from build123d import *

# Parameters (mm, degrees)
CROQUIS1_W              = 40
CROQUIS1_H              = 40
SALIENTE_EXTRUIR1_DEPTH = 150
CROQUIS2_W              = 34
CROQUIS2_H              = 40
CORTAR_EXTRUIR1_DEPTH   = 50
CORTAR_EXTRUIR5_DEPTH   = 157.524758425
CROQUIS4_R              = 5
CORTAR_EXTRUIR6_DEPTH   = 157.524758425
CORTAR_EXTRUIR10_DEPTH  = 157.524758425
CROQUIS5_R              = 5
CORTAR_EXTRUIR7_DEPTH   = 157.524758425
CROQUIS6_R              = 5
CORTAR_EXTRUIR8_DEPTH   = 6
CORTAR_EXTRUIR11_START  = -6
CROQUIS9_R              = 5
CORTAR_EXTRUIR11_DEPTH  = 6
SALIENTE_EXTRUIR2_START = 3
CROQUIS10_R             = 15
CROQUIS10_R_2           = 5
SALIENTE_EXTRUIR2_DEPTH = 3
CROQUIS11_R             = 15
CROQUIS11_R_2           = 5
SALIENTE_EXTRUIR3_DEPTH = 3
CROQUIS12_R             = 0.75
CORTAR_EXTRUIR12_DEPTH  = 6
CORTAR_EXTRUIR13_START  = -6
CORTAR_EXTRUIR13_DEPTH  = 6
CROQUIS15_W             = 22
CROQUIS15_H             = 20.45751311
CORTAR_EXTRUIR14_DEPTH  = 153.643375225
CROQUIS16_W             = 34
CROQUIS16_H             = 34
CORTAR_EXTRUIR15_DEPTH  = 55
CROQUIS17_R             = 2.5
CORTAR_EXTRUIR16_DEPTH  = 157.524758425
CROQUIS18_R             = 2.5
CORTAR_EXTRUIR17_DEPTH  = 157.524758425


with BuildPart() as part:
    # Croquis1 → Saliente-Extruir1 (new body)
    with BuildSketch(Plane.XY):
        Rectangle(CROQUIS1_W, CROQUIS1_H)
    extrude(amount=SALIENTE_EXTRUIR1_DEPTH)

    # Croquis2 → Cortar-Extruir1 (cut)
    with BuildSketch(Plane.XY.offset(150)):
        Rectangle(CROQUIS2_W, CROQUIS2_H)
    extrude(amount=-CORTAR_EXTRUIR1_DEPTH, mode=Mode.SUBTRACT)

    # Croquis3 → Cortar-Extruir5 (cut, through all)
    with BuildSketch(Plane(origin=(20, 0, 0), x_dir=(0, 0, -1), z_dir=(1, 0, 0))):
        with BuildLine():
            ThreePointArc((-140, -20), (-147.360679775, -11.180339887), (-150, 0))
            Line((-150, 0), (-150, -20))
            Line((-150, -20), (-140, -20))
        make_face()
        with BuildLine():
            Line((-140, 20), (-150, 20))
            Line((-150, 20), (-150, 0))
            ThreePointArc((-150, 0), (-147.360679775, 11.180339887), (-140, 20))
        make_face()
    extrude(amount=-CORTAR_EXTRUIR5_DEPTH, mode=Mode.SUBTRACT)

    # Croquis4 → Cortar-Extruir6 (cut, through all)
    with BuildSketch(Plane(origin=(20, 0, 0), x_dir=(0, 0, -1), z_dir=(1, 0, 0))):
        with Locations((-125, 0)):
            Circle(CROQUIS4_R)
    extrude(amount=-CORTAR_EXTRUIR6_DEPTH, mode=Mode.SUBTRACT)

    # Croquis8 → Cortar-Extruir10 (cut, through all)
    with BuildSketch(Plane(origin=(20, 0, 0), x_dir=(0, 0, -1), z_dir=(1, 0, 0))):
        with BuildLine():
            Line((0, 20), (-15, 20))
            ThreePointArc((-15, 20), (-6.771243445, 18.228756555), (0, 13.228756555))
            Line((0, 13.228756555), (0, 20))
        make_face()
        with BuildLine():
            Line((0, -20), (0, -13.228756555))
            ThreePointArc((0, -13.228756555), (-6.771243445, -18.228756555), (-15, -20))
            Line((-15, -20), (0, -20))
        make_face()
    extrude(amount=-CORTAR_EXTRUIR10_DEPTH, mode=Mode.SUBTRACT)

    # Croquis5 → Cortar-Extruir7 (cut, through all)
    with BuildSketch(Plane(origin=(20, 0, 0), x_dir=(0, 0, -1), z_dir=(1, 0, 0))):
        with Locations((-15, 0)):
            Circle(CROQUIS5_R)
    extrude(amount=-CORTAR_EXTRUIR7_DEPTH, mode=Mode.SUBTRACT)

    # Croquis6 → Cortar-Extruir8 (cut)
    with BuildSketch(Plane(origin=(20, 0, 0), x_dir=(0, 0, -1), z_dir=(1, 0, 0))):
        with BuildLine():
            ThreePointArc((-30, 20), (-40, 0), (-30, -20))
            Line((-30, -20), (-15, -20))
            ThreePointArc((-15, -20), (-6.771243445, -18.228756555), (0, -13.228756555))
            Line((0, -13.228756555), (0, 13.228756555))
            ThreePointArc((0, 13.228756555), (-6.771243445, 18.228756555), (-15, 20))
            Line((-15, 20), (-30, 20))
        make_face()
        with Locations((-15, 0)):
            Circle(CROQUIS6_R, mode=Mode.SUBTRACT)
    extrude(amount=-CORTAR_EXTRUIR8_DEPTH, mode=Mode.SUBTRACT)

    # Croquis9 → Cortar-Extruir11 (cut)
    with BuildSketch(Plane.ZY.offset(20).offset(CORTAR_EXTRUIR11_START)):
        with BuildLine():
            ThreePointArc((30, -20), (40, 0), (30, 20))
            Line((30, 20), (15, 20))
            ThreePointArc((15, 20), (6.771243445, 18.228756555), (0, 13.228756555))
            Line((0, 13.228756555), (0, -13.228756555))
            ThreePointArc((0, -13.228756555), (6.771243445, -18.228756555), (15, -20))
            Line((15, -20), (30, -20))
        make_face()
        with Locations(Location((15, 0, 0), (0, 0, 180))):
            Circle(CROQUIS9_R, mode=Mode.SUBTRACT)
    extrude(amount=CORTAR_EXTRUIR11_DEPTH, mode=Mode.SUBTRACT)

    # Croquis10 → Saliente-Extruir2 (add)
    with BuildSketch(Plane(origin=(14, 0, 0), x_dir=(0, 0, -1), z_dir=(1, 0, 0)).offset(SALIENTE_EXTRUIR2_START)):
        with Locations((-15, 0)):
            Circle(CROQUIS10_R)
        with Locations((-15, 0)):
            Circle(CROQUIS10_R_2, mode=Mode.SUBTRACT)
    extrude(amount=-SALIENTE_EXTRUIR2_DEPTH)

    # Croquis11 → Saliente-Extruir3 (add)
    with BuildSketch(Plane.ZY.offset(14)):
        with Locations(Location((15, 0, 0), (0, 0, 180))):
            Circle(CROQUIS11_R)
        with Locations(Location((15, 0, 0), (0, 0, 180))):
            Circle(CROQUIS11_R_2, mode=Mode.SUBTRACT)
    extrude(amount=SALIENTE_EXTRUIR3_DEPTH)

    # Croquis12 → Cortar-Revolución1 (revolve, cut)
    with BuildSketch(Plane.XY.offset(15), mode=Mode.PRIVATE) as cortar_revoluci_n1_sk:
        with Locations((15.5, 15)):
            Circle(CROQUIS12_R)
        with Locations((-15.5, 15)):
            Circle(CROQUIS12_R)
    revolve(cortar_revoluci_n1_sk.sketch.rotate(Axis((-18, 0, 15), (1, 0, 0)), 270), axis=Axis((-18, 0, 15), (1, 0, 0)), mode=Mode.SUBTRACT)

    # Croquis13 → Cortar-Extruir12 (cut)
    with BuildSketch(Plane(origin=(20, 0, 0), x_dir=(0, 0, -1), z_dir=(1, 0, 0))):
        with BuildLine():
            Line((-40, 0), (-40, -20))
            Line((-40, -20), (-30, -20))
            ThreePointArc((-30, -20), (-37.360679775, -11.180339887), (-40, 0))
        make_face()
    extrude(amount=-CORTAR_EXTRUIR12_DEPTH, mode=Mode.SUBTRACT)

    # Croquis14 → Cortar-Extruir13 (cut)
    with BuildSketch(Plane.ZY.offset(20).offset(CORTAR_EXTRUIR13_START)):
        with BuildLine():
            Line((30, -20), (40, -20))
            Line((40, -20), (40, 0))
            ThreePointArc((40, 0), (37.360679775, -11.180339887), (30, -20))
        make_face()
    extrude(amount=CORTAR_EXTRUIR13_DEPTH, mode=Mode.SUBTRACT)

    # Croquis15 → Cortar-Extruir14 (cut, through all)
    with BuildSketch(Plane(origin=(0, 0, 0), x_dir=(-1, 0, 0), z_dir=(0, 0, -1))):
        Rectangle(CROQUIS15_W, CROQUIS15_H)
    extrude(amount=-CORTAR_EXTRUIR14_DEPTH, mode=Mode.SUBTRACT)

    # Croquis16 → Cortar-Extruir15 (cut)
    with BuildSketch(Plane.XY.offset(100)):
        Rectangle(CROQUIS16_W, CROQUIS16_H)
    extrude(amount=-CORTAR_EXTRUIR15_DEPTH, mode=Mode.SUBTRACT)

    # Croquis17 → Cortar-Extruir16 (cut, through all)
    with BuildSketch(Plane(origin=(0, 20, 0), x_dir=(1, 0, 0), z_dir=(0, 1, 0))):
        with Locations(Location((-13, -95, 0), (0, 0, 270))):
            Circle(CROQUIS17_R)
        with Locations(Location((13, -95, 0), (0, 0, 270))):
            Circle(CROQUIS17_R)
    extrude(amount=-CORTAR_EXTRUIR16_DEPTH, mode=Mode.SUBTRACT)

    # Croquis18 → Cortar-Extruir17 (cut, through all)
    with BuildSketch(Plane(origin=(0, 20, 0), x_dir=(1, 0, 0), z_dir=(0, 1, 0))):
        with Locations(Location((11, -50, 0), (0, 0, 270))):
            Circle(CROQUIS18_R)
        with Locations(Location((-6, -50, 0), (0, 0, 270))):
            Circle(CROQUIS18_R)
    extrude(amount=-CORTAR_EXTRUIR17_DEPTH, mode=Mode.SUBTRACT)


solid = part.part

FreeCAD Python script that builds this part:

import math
import FreeCAD as App
import Part
import Sketcher
Q = App.Units.Quantity


def add_polygon(sketch, points):
    """Adds a closed chain of lines whose ends are joined by coincident constraints."""
    first, n = sketch.GeometryCount, len(points)
    for a, b in zip(points, points[1:] + points[:1]):
        sketch.addGeometry(Part.LineSegment(App.Vector(*a, 0), App.Vector(*b, 0)), False)
    for i in range(n):
        sketch.addConstraint(Sketcher.Constraint("Coincident", first + i, 2, first + (i + 1) % n, 1))

doc = App.newDocument("Part")
body = doc.addObject("PartDesign::Body", "Body")

# Sketch on XY plane
sketch1 = doc.addObject("Sketcher::SketchObject", "Sketch")
body.addObject(sketch1)
sketch1.AttachmentSupport = (doc.XY_Plane, [""])
sketch1.MapMode = "FlatFace"
add_polygon(sketch1, [(-20, 20), (-20, -20), (20, -20), (20, 20)])  # lines 0-3
sketch1.addConstraint([
    Sketcher.Constraint("Vertical", 0),
    Sketcher.Constraint("Horizontal", 1),
    Sketcher.Constraint("Vertical", 2),
    Sketcher.Constraint("Horizontal", 3),
    Sketcher.Constraint("Symmetric", 0, 2, 2, 2, -1, 1),
    Sketcher.Constraint("Equal", 3, 0),
    Sketcher.Constraint("DistanceX", 1, 1, 1, 2, Q("40 mm")),
])
pad1 = doc.addObject("PartDesign::Pad", "Pad")
body.addObject(pad1)
pad1.Profile = sketch1
pad1.Length = 150

# Sketch on XY plane
sketch2 = doc.addObject("Sketcher::SketchObject", "Sketch001")
body.addObject(sketch2)
sketch2.AttachmentSupport = (doc.XY_Plane, [""])
sketch2.MapMode = "FlatFace"
sketch2.AttachmentOffset = App.Placement(App.Vector(0, 0, 150), App.Rotation())
add_polygon(sketch2, [(-17, 20), (-17, -20), (17, -20), (17, 20)])  # lines 0-3
sketch2.addConstraint([
    Sketcher.Constraint("Vertical", 0),
    Sketcher.Constraint("Horizontal", 1),
    Sketcher.Constraint("Vertical", 2),
    Sketcher.Constraint("Horizontal", 3),
    Sketcher.Constraint("Symmetric", 0, 2, 2, 2, -1, 1),
    Sketcher.Constraint("DistanceX", 1, 1, 1, 2, Q("34 mm")),
    Sketcher.Constraint("DistanceY", 0, 2, 0, 1, Q("40 mm")),
])
pocket1 = doc.addObject("PartDesign::Pocket", "Pocket")
body.addObject(pocket1)
pocket1.Profile = sketch2
pocket1.Length = 50

# Sketch on YZ plane
sketch3 = doc.addObject("Sketcher::SketchObject", "Sketch002")
body.addObject(sketch3)
sketch3.AttachmentSupport = (doc.YZ_Plane, [""])
sketch3.MapMode = "FlatFace"
sketch3.AttachmentOffset = App.Placement(App.Vector(0, 0, 20), App.Rotation())
sketch3.addGeometry([
    Part.ArcOfCircle(Part.Circle(App.Vector(0, 125, 0), App.Vector(0, 0, 1), 25), math.radians(90), math.radians(143)),  # 0
    Part.LineSegment(App.Vector(0, 150, 0), App.Vector(-20, 150, 0)),  # 1
    Part.LineSegment(App.Vector(-20, 150, 0), App.Vector(-20, 140, 0)),  # 2
    Part.LineSegment(App.Vector(20, 140, 0), App.Vector(20, 150, 0)),  # 3
    Part.LineSegment(App.Vector(20, 150, 0), App.Vector(0, 150, 0)),  # 4
    Part.ArcOfCircle(Part.Circle(App.Vector(0, 125, 0), App.Vector(0, 0, 1), 25), math.radians(37), math.radians(90)),  # 5
], False)
sketch3.addConstraint([
    Sketcher.Constraint("Tangent", 0, 1, 1, 1),
    Sketcher.Constraint("Coincident", 1, 2, 2, 1),
    Sketcher.Constraint("Coincident", 2, 2, 0, 2),
    Sketcher.Constraint("Coincident", 3, 2, 4, 1),
    Sketcher.Constraint("Tangent", 4, 2, 5, 2),
    Sketcher.Constraint("Coincident", 5, 1, 3, 1),
    Sketcher.Constraint("Horizontal", 1),
    Sketcher.Constraint("Vertical", 2),
    Sketcher.Constraint("Vertical", 3),
    Sketcher.Constraint("Horizontal", 4),
    Sketcher.Constraint("Coincident", 5, 3, 0, 3),
    Sketcher.Constraint("Equal", 0, 5),
    Sketcher.Constraint("Symmetric", 2, 2, 5, 1, -2),
    Sketcher.Constraint("Radius", 0, Q("25 mm")),
    Sketcher.Constraint("DistanceX", 1, 2, 1, 1, Q("20 mm")),
    Sketcher.Constraint("DistanceY", -1, 1, 0, 3, Q("125 mm")),
])
pocket2 = doc.addObject("PartDesign::Pocket", "Pocket001")
body.addObject(pocket2)
pocket2.Profile = sketch3
pocket2.Type = "ThroughAll"

# Sketch on YZ plane
sketch4 = doc.addObject("Sketcher::SketchObject", "Sketch003")
body.addObject(sketch4)
sketch4.AttachmentSupport = (doc.YZ_Plane, [""])
sketch4.MapMode = "FlatFace"
sketch4.AttachmentOffset = App.Placement(App.Vector(0, 0, 20), App.Rotation())
sketch4.addGeometry(Part.Circle(App.Vector(0, 125, 0), App.Vector(0, 0, 1), 5), False)
sketch4.addConstraint([
    Sketcher.Constraint("PointOnObject", 0, 3, -2),
    Sketcher.Constraint("Diameter", 0, Q("10 mm")),
    Sketcher.Constraint("DistanceY", -1, 1, 0, 3, Q("125 mm")),
])
pocket3 = doc.addObject("PartDesign::Pocket", "Pocket002")
body.addObject(pocket3)
pocket3.Profile = sketch4
pocket3.Type = "ThroughAll"

# Sketch on YZ plane
sketch5 = doc.addObject("Sketcher::SketchObject", "Sketch004")
body.addObject(sketch5)
sketch5.AttachmentSupport = (doc.YZ_Plane, [""])
sketch5.MapMode = "FlatFace"
sketch5.AttachmentOffset = App.Placement(App.Vector(0, 0, 20), App.Rotation())
sketch5.addGeometry([
    Part.LineSegment(App.Vector(20, 0, 0), App.Vector(20, 15, 0)),  # 0
    Part.ArcOfCircle(Part.Circle(App.Vector(0, 15, 0), App.Vector(0, 0, 1), 20), math.radians(-49), math.radians(0)),  # 1
    Part.LineSegment(App.Vector(13, 0, 0), App.Vector(20, 0, 0)),  # 2
    Part.LineSegment(App.Vector(-20, 0, 0), App.Vector(-13, 0, 0)),  # 3
    Part.ArcOfCircle(Part.Circle(App.Vector(0, 15, 0), App.Vector(0, 0, 1), 20), math.radians(-180), math.radians(-131)),  # 4
    Part.LineSegment(App.Vector(-20, 15, 0), App.Vector(-20, 0, 0)),  # 5
], False)
sketch5.addConstraint([
    Sketcher.Constraint("Tangent", 0, 2, 1, 2),
    Sketcher.Constraint("Coincident", 1, 1, 2, 1),
    Sketcher.Constraint("Coincident", 2, 2, 0, 1),
    Sketcher.Constraint("Coincident", 3, 2, 4, 2),
    Sketcher.Constraint("Tangent", 4, 1, 5, 1),
    Sketcher.Constraint("Coincident", 5, 2, 3, 1),
    Sketcher.Constraint("Vertical", 0),
    Sketcher.Constraint("Horizontal", 2),
    Sketcher.Constraint("Horizontal", 3),
    Sketcher.Constraint("Vertical", 5),
    Sketcher.Constraint("Coincident", 4, 3, 1, 3),
    Sketcher.Constraint("Equal", 1, 4),
    Sketcher.Constraint("Symmetric", 1, 1, 3, 2, -1, 1),
    Sketcher.Constraint("PointOnObject", 1, 3, -2),
    Sketcher.Constraint("Radius", 1, Q("20 mm")),
    Sketcher.Constraint("DistanceY", 0, 1, 0, 2, Q("15 mm")),
])
pocket4 = doc.addObject("PartDesign::Pocket", "Pocket003")
body.addObject(pocket4)
pocket4.Profile = sketch5
pocket4.Type = "ThroughAll"

# Sketch on YZ plane
sketch6 = doc.addObject("Sketcher::SketchObject", "Sketch005")
body.addObject(sketch6)
sketch6.AttachmentSupport = (doc.YZ_Plane, [""])
sketch6.MapMode = "FlatFace"
sketch6.AttachmentOffset = App.Placement(App.Vector(0, 0, 20), App.Rotation())
sketch6.addGeometry(Part.Circle(App.Vector(0, 15, 0), App.Vector(0, 0, 1), 5), False)
sketch6.addConstraint([
    Sketcher.Constraint("PointOnObject", 0, 3, -2),
    Sketcher.Constraint("Diameter", 0, Q("10 mm")),
    Sketcher.Constraint("DistanceY", -1, 1, 0, 3, Q("15 mm")),
])
pocket5 = doc.addObject("PartDesign::Pocket", "Pocket004")
body.addObject(pocket5)
pocket5.Profile = sketch6
pocket5.Type = "ThroughAll"

# Sketch on YZ plane
sketch7 = doc.addObject("Sketcher::SketchObject", "Sketch006")
body.addObject(sketch7)
sketch7.AttachmentSupport = (doc.YZ_Plane, [""])
sketch7.MapMode = "FlatFace"
sketch7.AttachmentOffset = App.Placement(App.Vector(0, 0, 20), App.Rotation())
sketch7.addGeometry([
    Part.ArcOfCircle(Part.Circle(App.Vector(0, 15, 0), App.Vector(0, 0, 1), 25), math.radians(37), math.radians(143)),  # 0
    Part.LineSegment(App.Vector(-20, 30, 0), App.Vector(-20, 15, 0)),  # 1
    Part.ArcOfCircle(Part.Circle(App.Vector(0, 15, 0), App.Vector(0, 0, 1), 20), math.radians(-180), math.radians(-131)),  # 2
    Part.LineSegment(App.Vector(-13, 0, 0), App.Vector(13, 0, 0)),  # 3
    Part.ArcOfCircle(Part.Circle(App.Vector(0, 15, 0), App.Vector(0, 0, 1), 20), math.radians(-49), math.radians(0)),  # 4
    Part.LineSegment(App.Vector(20, 15, 0), App.Vector(20, 30, 0)),  # 5
    Part.Circle(App.Vector(0, 15, 0), App.Vector(0, 0, 1), 5),  # 6
], False)
sketch7.addConstraint([
    Sketcher.Constraint("Coincident", 0, 2, 1, 1),
    Sketcher.Constraint("Tangent", 1, 2, 2, 1),
    Sketcher.Constraint("Coincident", 2, 2, 3, 1),
    Sketcher.Constraint("Coincident", 3, 2, 4, 1),
    Sketcher.Constraint("Tangent", 4, 2, 5, 1),
    Sketcher.Constraint("Coincident", 5, 2, 0, 1),
    Sketcher.Constraint("Vertical", 1),
    Sketcher.Constraint("Horizontal", 3),
    Sketcher.Constraint("Vertical", 5),
    Sketcher.Constraint("Coincident", 2, 3, 0, 3),
    Sketcher.Constraint("Coincident", 4, 3, 0, 3),
    Sketcher.Constraint("Coincident", 6, 3, 0, 3),
    Sketcher.Constraint("Equal", 2, 4),
    Sketcher.Constraint("Symmetric", 2, 2, 3, 2, -1, 1),
    Sketcher.Constraint("Diameter", 6, Q("10 mm")),
    Sketcher.Constraint("Radius", 0, Q("25 mm")),
    Sketcher.Constraint("Radius", 2, Q("20 mm")),
    Sketcher.Constraint("DistanceY", -1, 1, 0, 3, Q("15 mm")),
])
pocket6 = doc.addObject("PartDesign::Pocket", "Pocket005")
body.addObject(pocket6)
pocket6.Profile = sketch7
pocket6.Length = 6

# Sketch on YZ plane
sketch8 = doc.addObject("Sketcher::SketchObject", "Sketch007")
body.addObject(sketch8)
sketch8.AttachmentSupport = (doc.YZ_Plane, [""])
sketch8.MapMode = "FlatFace"
sketch8.AttachmentOffset = App.Placement(App.Vector(0, 0, -14), App.Rotation())
sketch8.addGeometry([
    Part.ArcOfCircle(Part.Circle(App.Vector(0, 15, 0), App.Vector(0, 0, 1), 25), math.radians(37), math.radians(143)),  # 0
    Part.LineSegment(App.Vector(20, 30, 0), App.Vector(20, 15, 0)),  # 1
    Part.ArcOfCircle(Part.Circle(App.Vector(0, 15, 0), App.Vector(0, 0, 1), 20), math.radians(-49), math.radians(0)),  # 2
    Part.LineSegment(App.Vector(13, 0, 0), App.Vector(-13, 0, 0)),  # 3
    Part.ArcOfCircle(Part.Circle(App.Vector(0, 15, 0), App.Vector(0, 0, 1), 20), math.radians(-180), math.radians(-131)),  # 4
    Part.LineSegment(App.Vector(-20, 15, 0), App.Vector(-20, 30, 0)),  # 5
    Part.Circle(App.Vector(0, 15, 0), App.Vector(0, 0, 1), 5),  # 6
], False)
sketch8.addConstraint([
    Sketcher.Constraint("Coincident", 0, 1, 1, 1),
    Sketcher.Constraint("Tangent", 1, 2, 2, 2),
    Sketcher.Constraint("Coincident", 2, 1, 3, 1),
    Sketcher.Constraint("Coincident", 3, 2, 4, 2),
    Sketcher.Constraint("Tangent", 4, 1, 5, 1),
    Sketcher.Constraint("Coincident", 5, 2, 0, 2),
    Sketcher.Constraint("Vertical", 1),
    Sketcher.Constraint("Horizontal", 3),
    Sketcher.Constraint("Vertical", 5),
    Sketcher.Constraint("Coincident", 2, 3, 0, 3),
    Sketcher.Constraint("Coincident", 4, 3, 0, 3),
    Sketcher.Constraint("Coincident", 6, 3, 0, 3),
    Sketcher.Constraint("Equal", 2, 4),
    Sketcher.Constraint("Symmetric", 2, 1, 3, 2, -1, 1),
    Sketcher.Constraint("Diameter", 6, Q("10 mm")),
    Sketcher.Constraint("Radius", 0, Q("25 mm")),
    Sketcher.Constraint("Radius", 2, Q("20 mm")),
    Sketcher.Constraint("DistanceY", -1, 1, 0, 3, Q("15 mm")),
])
pocket7 = doc.addObject("PartDesign::Pocket", "Pocket006")
body.addObject(pocket7)
pocket7.Profile = sketch8
pocket7.Length = 6

# Sketch on YZ plane
sketch9 = doc.addObject("Sketcher::SketchObject", "Sketch008")
body.addObject(sketch9)
sketch9.AttachmentSupport = (doc.YZ_Plane, [""])
sketch9.MapMode = "FlatFace"
sketch9.AttachmentOffset = App.Placement(App.Vector(0, 0, 17), App.Rotation())
sketch9.addGeometry([
    Part.Circle(App.Vector(0, 15, 0), App.Vector(0, 0, 1), 15),
    Part.Circle(App.Vector(0, 15, 0), App.Vector(0, 0, 1), 5),
], False)
sketch9.addConstraint([
    Sketcher.Constraint("Coincident", 1, 3, 0, 3),
    Sketcher.Constraint("PointOnObject", 0, 3, -2),
    Sketcher.Constraint("Diameter", 0, Q("30 mm")),
    Sketcher.Constraint("Diameter", 1, Q("10 mm")),
    Sketcher.Constraint("DistanceY", -1, 1, 0, 3, Q("15 mm")),
])
pad2 = doc.addObject("PartDesign::Pad", "Pad001")
body.addObject(pad2)
pad2.Profile = sketch9
pad2.Length = 3
pad2.Reversed = True

# Sketch on YZ plane
sketch10 = doc.addObject("Sketcher::SketchObject", "Sketch009")
body.addObject(sketch10)
sketch10.AttachmentSupport = (doc.YZ_Plane, [""])
sketch10.MapMode = "FlatFace"
sketch10.AttachmentOffset = App.Placement(App.Vector(0, 0, -14), App.Rotation())
sketch10.addGeometry([
    Part.Circle(App.Vector(0, 15, 0), App.Vector(0, 0, 1), 15),
    Part.Circle(App.Vector(0, 15, 0), App.Vector(0, 0, 1), 5),
], False)
sketch10.addConstraint([
    Sketcher.Constraint("Coincident", 1, 3, 0, 3),
    Sketcher.Constraint("PointOnObject", 0, 3, -2),
    Sketcher.Constraint("Diameter", 0, Q("30 mm")),
    Sketcher.Constraint("Diameter", 1, Q("10 mm")),
    Sketcher.Constraint("DistanceY", -1, 1, 0, 3, Q("15 mm")),
])
pad3 = doc.addObject("PartDesign::Pad", "Pad002")
body.addObject(pad3)
pad3.Profile = sketch10
pad3.Length = 3
pad3.Reversed = True

# Sketch on XY plane
sketch11 = doc.addObject("Sketcher::SketchObject", "Sketch010")
body.addObject(sketch11)
sketch11.AttachmentSupport = (doc.XY_Plane, [""])
sketch11.MapMode = "FlatFace"
sketch11.AttachmentOffset = App.Placement(App.Vector(0, 0, 15), App.Rotation())
sketch11.addGeometry([
    Part.Circle(App.Vector(15.5, 15, 0), App.Vector(0, 0, 1), 0.8),
    Part.Circle(App.Vector(-15.5, 15, 0), App.Vector(0, 0, 1), 0.8),
], False)
sketch11.addConstraint([
    Sketcher.Constraint("Equal", 0, 1),
    Sketcher.Constraint("Symmetric", 0, 3, 1, 3, -2),
    Sketcher.Constraint("Diameter", 0, Q("1.5 mm")),
    Sketcher.Constraint("DistanceY", -1, 1, 0, 3, Q("15 mm")),
    Sketcher.Constraint("DistanceX", 1, 3, 0, 3, Q("31 mm")),
])
groove = doc.addObject("PartDesign::Groove", "Groove")
body.addObject(groove)
groove.Profile = sketch11
groove.ReferenceAxis = (sketch11, ["H_Axis"])
groove.Angle = 360

# Sketch on YZ plane
sketch12 = doc.addObject("Sketcher::SketchObject", "Sketch011")
body.addObject(sketch12)
sketch12.AttachmentSupport = (doc.YZ_Plane, [""])
sketch12.MapMode = "FlatFace"
sketch12.AttachmentOffset = App.Placement(App.Vector(0, 0, 20), App.Rotation())
sketch12.addGeometry([
    Part.LineSegment(App.Vector(0, 40, 0), App.Vector(-20, 40, 0)),
    Part.LineSegment(App.Vector(-20, 40, 0), App.Vector(-20, 30, 0)),
    Part.ArcOfCircle(Part.Circle(App.Vector(0, 15, 0), App.Vector(0, 0, 1), 25), math.radians(90), math.radians(143)),
], False)
sketch12.addConstraint([
    Sketcher.Constraint("Coincident", 0, 2, 1, 1),
    Sketcher.Constraint("Coincident", 1, 2, 2, 2),
    Sketcher.Constraint("Tangent", 2, 1, 0, 1),
    Sketcher.Constraint("Horizontal", 0),
    Sketcher.Constraint("Vertical", 1),
    Sketcher.Constraint("PointOnObject", 2, 3, -2),
    Sketcher.Constraint("Radius", 2, Q("25 mm")),
    Sketcher.Constraint("DistanceX", 0, 2, 0, 1, Q("20 mm")),
    Sketcher.Constraint("DistanceY", -1, 1, 2, 3, Q("15 mm")),
])
pocket8 = doc.addObject("PartDesign::Pocket", "Pocket007")
body.addObject(pocket8)
pocket8.Profile = sketch12
pocket8.Length = 6

# Sketch on YZ plane
sketch13 = doc.addObject("Sketcher::SketchObject", "Sketch012")
body.addObject(sketch13)
sketch13.AttachmentSupport = (doc.YZ_Plane, [""])
sketch13.MapMode = "FlatFace"
sketch13.AttachmentOffset = App.Placement(App.Vector(0, 0, -14), App.Rotation())
sketch13.addGeometry([
    Part.LineSegment(App.Vector(-20, 30, 0), App.Vector(-20, 40, 0)),
    Part.LineSegment(App.Vector(-20, 40, 0), App.Vector(0, 40, 0)),
    Part.ArcOfCircle(Part.Circle(App.Vector(0, 15, 0), App.Vector(0, 0, 1), 25), math.radians(90), math.radians(143)),
], False)
sketch13.addConstraint([
    Sketcher.Constraint("Coincident", 0, 2, 1, 1),
    Sketcher.Constraint("Tangent", 1, 2, 2, 1),
    Sketcher.Constraint("Coincident", 2, 2, 0, 1),
    Sketcher.Constraint("Vertical", 0),
    Sketcher.Constraint("Horizontal", 1),
    Sketcher.Constraint("PointOnObject", 2, 3, -2),
    Sketcher.Constraint("Radius", 2, Q("25 mm")),
    Sketcher.Constraint("DistanceX", 1, 1, 1, 2, Q("20 mm")),
    Sketcher.Constraint("DistanceY", -1, 1, 2, 3, Q("15 mm")),
])
pocket9 = doc.addObject("PartDesign::Pocket", "Pocket008")
body.addObject(pocket9)
pocket9.Profile = sketch13
pocket9.Length = 6

# Sketch on XY plane
sketch14 = doc.addObject("Sketcher::SketchObject", "Sketch013")
body.addObject(sketch14)
sketch14.AttachmentSupport = (doc.XY_Plane, [""])
sketch14.MapMode = "FlatFace"
add_polygon(sketch14, [(11, 10), (11, -10), (-11, -10), (-11, 10)])  # lines 0-3
sketch14.addConstraint([
    Sketcher.Constraint("Vertical", 0),
    Sketcher.Constraint("Horizontal", 1),
    Sketcher.Constraint("Vertical", 2),
    Sketcher.Constraint("Horizontal", 3),
    Sketcher.Constraint("Symmetric", 0, 2, 2, 2, -1, 1),
    Sketcher.Constraint("DistanceX", 1, 2, 1, 1, Q("22 mm")),
    Sketcher.Constraint("DistanceY", 0, 2, 0, 1, Q("20.457513 mm")),
])
pocket10 = doc.addObject("PartDesign::Pocket", "Pocket009")
body.addObject(pocket10)
pocket10.Profile = sketch14
pocket10.Type = "ThroughAll"
pocket10.Reversed = True

# Sketch on XY plane
sketch15 = doc.addObject("Sketcher::SketchObject", "Sketch014")
body.addObject(sketch15)
sketch15.AttachmentSupport = (doc.XY_Plane, [""])
sketch15.MapMode = "FlatFace"
sketch15.AttachmentOffset = App.Placement(App.Vector(0, 0, 100), App.Rotation())
add_polygon(sketch15, [(-17, 17), (-17, -17), (17, -17), (17, 17)])  # lines 0-3
sketch15.addConstraint([
    Sketcher.Constraint("Vertical", 0),
    Sketcher.Constraint("Horizontal", 1),
    Sketcher.Constraint("Vertical", 2),
    Sketcher.Constraint("Horizontal", 3),
    Sketcher.Constraint("Symmetric", 0, 2, 2, 2, -1, 1),
    Sketcher.Constraint("Equal", 3, 0),
    Sketcher.Constraint("DistanceX", 1, 1, 1, 2, Q("34 mm")),
])
pocket11 = doc.addObject("PartDesign::Pocket", "Pocket010")
body.addObject(pocket11)
pocket11.Profile = sketch15
pocket11.Length = 55

# Sketch on XZ plane
sketch16 = doc.addObject("Sketcher::SketchObject", "Sketch015")
body.addObject(sketch16)
sketch16.AttachmentSupport = (doc.XZ_Plane, [""])
sketch16.MapMode = "FlatFace"
sketch16.AttachmentOffset = App.Placement(App.Vector(0, 0, -20), App.Rotation())
sketch16.addGeometry([
    Part.Circle(App.Vector(-13, 95, 0), App.Vector(0, 0, 1), 2.5),
    Part.Circle(App.Vector(13, 95, 0), App.Vector(0, 0, 1), 2.5),
], False)
sketch16.addConstraint([
    Sketcher.Constraint("Equal", 0, 1),
    Sketcher.Constraint("Symmetric", 0, 3, 1, 3, -2),
    Sketcher.Constraint("Diameter", 0, Q("5 mm")),
    Sketcher.Constraint("DistanceX", 0, 3, -1, 1, Q("13 mm")),
    Sketcher.Constraint("DistanceY", -1, 1, 0, 3, Q("95 mm")),
])
pocket12 = doc.addObject("PartDesign::Pocket", "Pocket011")
body.addObject(pocket12)
pocket12.Profile = sketch16
pocket12.Type = "ThroughAll"
pocket12.Reversed = True

# Sketch on XZ plane
sketch17 = doc.addObject("Sketcher::SketchObject", "Sketch016")
body.addObject(sketch17)
sketch17.AttachmentSupport = (doc.XZ_Plane, [""])
sketch17.MapMode = "FlatFace"
sketch17.AttachmentOffset = App.Placement(App.Vector(0, 0, -20), App.Rotation())
sketch17.addGeometry([
    Part.Circle(App.Vector(11, 50, 0), App.Vector(0, 0, 1), 2.5),
    Part.Circle(App.Vector(-6, 50, 0), App.Vector(0, 0, 1), 2.5),
], False)
sketch17.addConstraint([
    Sketcher.Constraint("Equal", 0, 1),
    Sketcher.Constraint("Horizontal", 0, 3, 1, 3),
    Sketcher.Constraint("Diameter", 0, Q("5 mm")),
    Sketcher.Constraint("DistanceX", -1, 1, 0, 3, Q("11 mm")),
    Sketcher.Constraint("DistanceY", -1, 1, 0, 3, Q("50 mm")),
    Sketcher.Constraint("DistanceX", 1, 3, -1, 1, Q("6 mm")),
])
pocket13 = doc.addObject("PartDesign::Pocket", "Pocket012")
body.addObject(pocket13)
pocket13.Profile = sketch17
pocket13.Type = "ThroughAll"
pocket13.Reversed = True

doc.recompute()
